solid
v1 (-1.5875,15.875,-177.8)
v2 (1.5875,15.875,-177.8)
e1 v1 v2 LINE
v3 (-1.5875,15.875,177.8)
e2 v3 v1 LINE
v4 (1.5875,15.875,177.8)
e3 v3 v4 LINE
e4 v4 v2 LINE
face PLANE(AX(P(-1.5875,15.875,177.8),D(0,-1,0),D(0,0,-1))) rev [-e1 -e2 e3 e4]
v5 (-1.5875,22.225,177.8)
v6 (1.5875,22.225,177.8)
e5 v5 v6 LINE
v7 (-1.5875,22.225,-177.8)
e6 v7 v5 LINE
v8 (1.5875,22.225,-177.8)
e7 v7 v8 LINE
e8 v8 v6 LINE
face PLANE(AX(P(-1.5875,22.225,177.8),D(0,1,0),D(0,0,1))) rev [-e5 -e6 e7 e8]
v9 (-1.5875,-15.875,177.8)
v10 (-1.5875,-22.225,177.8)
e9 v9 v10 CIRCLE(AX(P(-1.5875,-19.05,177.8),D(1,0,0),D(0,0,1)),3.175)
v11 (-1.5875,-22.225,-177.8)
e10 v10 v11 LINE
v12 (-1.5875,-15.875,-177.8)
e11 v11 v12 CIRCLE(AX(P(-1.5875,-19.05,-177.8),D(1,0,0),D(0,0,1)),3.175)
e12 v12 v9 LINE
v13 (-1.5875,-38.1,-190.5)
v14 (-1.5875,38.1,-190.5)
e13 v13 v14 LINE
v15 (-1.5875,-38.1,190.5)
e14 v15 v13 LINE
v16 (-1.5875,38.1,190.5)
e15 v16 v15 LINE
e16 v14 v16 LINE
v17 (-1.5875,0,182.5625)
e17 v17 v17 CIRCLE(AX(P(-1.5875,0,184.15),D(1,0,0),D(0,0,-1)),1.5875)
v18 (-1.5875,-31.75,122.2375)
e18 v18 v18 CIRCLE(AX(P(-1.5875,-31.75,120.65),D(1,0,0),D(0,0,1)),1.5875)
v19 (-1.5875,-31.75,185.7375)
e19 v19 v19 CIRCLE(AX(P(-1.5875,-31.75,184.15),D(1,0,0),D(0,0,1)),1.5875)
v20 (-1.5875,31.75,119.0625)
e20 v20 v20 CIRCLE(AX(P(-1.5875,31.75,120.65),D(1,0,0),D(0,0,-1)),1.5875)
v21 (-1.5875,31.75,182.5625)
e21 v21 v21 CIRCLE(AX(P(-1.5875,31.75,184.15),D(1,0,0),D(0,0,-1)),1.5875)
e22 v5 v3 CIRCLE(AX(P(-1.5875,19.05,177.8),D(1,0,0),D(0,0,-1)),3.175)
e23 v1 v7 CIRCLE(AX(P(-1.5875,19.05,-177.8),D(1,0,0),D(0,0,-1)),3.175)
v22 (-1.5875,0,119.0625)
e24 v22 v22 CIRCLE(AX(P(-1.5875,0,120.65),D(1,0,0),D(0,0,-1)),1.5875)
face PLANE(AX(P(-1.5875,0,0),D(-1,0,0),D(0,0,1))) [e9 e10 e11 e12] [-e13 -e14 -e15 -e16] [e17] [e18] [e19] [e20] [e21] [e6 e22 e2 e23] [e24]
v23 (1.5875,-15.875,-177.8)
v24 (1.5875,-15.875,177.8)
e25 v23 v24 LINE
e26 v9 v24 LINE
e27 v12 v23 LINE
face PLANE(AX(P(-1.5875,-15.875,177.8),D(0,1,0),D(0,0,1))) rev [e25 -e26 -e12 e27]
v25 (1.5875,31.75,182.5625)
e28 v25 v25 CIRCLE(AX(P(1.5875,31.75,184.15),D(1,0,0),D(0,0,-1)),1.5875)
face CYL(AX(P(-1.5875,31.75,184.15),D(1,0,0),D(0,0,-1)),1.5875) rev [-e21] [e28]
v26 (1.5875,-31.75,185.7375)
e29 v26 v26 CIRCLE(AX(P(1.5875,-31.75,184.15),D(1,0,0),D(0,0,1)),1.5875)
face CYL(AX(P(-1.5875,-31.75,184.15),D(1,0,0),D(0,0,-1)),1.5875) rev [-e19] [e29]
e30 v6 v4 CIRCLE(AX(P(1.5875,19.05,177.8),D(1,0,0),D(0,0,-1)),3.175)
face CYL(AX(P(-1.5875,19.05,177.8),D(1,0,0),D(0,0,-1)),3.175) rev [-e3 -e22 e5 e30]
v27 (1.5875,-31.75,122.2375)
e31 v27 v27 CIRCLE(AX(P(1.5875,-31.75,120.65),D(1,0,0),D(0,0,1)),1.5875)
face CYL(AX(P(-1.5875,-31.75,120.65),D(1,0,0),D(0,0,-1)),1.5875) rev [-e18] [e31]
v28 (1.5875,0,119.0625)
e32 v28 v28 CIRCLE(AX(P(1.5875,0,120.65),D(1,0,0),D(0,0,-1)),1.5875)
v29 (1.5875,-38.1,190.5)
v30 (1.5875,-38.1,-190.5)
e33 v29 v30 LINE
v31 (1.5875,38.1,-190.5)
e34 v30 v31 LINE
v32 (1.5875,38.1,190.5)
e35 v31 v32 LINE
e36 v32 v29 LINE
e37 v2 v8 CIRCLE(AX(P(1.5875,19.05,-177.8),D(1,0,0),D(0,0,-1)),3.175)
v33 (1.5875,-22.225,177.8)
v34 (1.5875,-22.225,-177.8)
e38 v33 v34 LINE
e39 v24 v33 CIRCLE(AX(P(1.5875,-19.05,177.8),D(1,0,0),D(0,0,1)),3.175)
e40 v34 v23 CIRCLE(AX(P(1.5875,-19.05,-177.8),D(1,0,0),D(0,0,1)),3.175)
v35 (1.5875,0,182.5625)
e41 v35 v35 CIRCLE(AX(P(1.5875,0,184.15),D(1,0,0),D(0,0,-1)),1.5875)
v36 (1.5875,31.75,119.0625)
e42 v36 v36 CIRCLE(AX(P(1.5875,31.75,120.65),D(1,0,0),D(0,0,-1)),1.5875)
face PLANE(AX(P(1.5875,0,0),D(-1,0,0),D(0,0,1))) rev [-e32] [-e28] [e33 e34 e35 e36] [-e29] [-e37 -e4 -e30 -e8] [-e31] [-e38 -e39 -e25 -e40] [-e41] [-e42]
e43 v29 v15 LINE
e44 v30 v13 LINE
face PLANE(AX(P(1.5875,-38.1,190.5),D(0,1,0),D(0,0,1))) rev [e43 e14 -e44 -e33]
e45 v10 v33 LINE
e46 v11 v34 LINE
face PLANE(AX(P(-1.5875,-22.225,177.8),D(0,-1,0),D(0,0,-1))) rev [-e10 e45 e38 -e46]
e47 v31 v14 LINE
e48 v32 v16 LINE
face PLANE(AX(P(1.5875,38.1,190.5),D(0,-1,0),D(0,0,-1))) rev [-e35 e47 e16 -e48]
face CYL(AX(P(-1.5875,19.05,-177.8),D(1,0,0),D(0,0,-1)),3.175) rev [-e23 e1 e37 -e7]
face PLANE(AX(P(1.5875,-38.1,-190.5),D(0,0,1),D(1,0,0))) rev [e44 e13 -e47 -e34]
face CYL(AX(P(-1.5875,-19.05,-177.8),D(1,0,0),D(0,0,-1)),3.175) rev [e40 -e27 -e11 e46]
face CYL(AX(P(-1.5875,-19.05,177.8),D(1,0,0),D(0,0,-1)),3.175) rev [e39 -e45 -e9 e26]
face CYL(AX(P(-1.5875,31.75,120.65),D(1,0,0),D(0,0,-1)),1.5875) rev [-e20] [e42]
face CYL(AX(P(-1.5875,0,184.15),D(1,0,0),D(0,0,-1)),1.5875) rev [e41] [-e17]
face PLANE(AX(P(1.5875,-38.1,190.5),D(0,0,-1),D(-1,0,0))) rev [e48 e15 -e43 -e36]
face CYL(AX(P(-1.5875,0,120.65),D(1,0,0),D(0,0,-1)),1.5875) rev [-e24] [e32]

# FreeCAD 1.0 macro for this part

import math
import FreeCAD as App
import Part
import Sketcher
Q = App.Units.Quantity

doc = App.newDocument("Part")
body = doc.addObject("PartDesign::Body", "Body")

sketch1 = body.newObject("Sketcher::SketchObject", "Sketch")
sketch1.AttachmentSupport = (doc.getObject("YZ_Plane"), [""])
sketch1.MapMode = "FlatFace"
sketch1.addGeometry(Part.LineSegment(App.Vector(38.1, 190.5, 0), App.Vector(-38.1, 190.5, 0)), False)
sketch1.addGeometry(Part.LineSegment(App.Vector(-38.1, 190.5, 0), App.Vector(-38.1, -190.5, 0)), False)
sketch1.addGeometry(Part.LineSegment(App.Vector(-38.1, -190.5, 0), App.Vector(38.1, -190.5, 0)), False)
sketch1.addGeometry(Part.LineSegment(App.Vector(38.1, -190.5, 0), App.Vector(38.1, 190.5, 0)), False)
sketch1.addConstraint(Sketcher.Constraint("Coincident", 0, 2, 1, 1))
sketch1.addConstraint(Sketcher.Constraint("Coincident", 1, 2, 2, 1))
sketch1.addConstraint(Sketcher.Constraint("Coincident", 2, 2, 3, 1))
sketch1.addConstraint(Sketcher.Constraint("Coincident", 3, 2, 0, 1))
sketch1.addConstraint(Sketcher.Constraint("Horizontal", 0))
sketch1.addConstraint(Sketcher.Constraint("Vertical", 1))
sketch1.addConstraint(Sketcher.Constraint("Horizontal", 2))
sketch1.addConstraint(Sketcher.Constraint("Vertical", 3))
sketch1.addConstraint(Sketcher.Constraint("Symmetric", 0, 2, 2, 2, -1, 1))
sketch1.addConstraint(Sketcher.Constraint("DistanceX", 0, 2, 0, 1, Q("3 in")))
sketch1.addConstraint(Sketcher.Constraint("DistanceY", 1, 2, 1, 1, Q("15 in")))
pad1 = body.newObject("PartDesign::Pad", "Pad")
pad1.Profile = sketch1
pad1.Length = Q("0.125 in")
pad1.Midplane = True

sketch2 = body.newObject("Sketcher::SketchObject", "Sketch001")
sketch2.AttachmentSupport = (doc.getObject("YZ_Plane"), [""])
sketch2.MapMode = "FlatFace"
sketch2.AttachmentOffset = App.Placement(App.Vector(0, 0, 0.0625 * 25.4), App.Rotation())
sketch2.addGeometry(Part.LineSegment(App.Vector(22.225, -177.8, 0), App.Vector(22.225, 177.8, 0)), False)
sketch2.addGeometry(Part.ArcOfCircle(Part.Circle(App.Vector(19.05, 177.8, 0), App.Vector(0, 0, 1), 3.175), math.radians(0), math.radians(180)), False)
sketch2.addGeometry(Part.LineSegment(App.Vector(15.875, 177.8, 0), App.Vector(15.875, -177.8, 0)), False)
sketch2.addGeometry(Part.ArcOfCircle(Part.Circle(App.Vector(19.05, -177.8, 0), App.Vector(0, 0, 1), 3.175), math.radians(180), math.radians(360)), False)
sketch2.addGeometry(Part.LineSegment(App.Vector(-22.225, 177.8, 0), App.Vector(-22.225, -177.8, 0)), False)
sketch2.addGeometry(Part.ArcOfCircle(Part.Circle(App.Vector(-19.05, -177.8, 0), App.Vector(0, 0, 1), 3.175), math.radians(180), math.radians(360)), False)
sketch2.addGeometry(Part.LineSegment(App.Vector(-15.875, -177.8, 0), App.Vector(-15.875, 177.8, 0)), False)
sketch2.addGeometry(Part.ArcOfCircle(Part.Circle(App.Vector(-19.05, 177.8, 0), App.Vector(0, 0, 1), 3.175), math.radians(0), math.radians(180)), False)
sketch2.addConstraint(Sketcher.Constraint("Tangent", 0, 2, 1, 1))
sketch2.addConstraint(Sketcher.Constraint("Tangent", 1, 2, 2, 1))
sketch2.addConstraint(Sketcher.Constraint("Tangent", 2, 2, 3, 1))
sketch2.addConstraint(Sketcher.Constraint("Tangent", 3, 2, 0, 1))
sketch2.addConstraint(Sketcher.Constraint("Tangent", 4, 2, 5, 1))
sketch2.addConstraint(Sketcher.Constraint("Tangent", 5, 2, 6, 1))
sketch2.addConstraint(Sketcher.Constraint("Tangent", 6, 2, 7, 1))
sketch2.addConstraint(Sketcher.Constraint("Tangent", 7, 2, 4, 1))
sketch2.addConstraint(Sketcher.Constraint("Vertical", 0))
sketch2.addConstraint(Sketcher.Constraint("Vertical", 2))
sketch2.addConstraint(Sketcher.Constraint("Vertical", 4))
sketch2.addConstraint(Sketcher.Constraint("Vertical", 6))
sketch2.addConstraint(Sketcher.Constraint("Equal", 3, 5))
sketch2.addConstraint(Sketcher.Constraint("Symmetric", 1, 3, 5, 3, -1, 1))
sketch2.addConstraint(Sketcher.Constraint("Horizontal", 3, 3, 5, 3))
sketch2.addConstraint(Sketcher.Constraint("Horizontal", 1, 3, 7, 3))
sketch2.addConstraint(Sketcher.Constraint("DistanceY", 0, 1, 0, 2, Q("14 in")))
sketch2.addConstraint(Sketcher.Constraint("Radius", 1, Q("0.125 in")))
sketch2.addConstraint(Sketcher.Constraint("DistanceX", 5, 3, 3, 3, Q("1.5 in")))
pocket1 = body.newObject("PartDesign::Pocket", "Pocket")
pocket1.Profile = sketch2
pocket1.Type = "ThroughAll"

sketch3 = body.newObject("Sketcher::SketchObject", "Sketch002")
sketch3.AttachmentSupport = (doc.getObject("YZ_Plane"), [""])
sketch3.MapMode = "FlatFace"
sketch3.AttachmentOffset = App.Placement(App.Vector(0, 0, 0.0625 * 25.4), App.Rotation())
sketch3.addGeometry(Part.Circle(App.Vector(31.75, 184.15, 0), App.Vector(0, 0, 1), 1.5875), False)
sketch3.addGeometry(Part.Circle(App.Vector(31.75, 120.65, 0), App.Vector(0, 0, 1), 1.5875), False)
sketch3.addGeometry(Part.Circle(App.Vector(-31.75, 120.65, 0), App.Vector(0, 0, 1), 1.5875), False)
sketch3.addGeometry(Part.Circle(App.Vector(-31.75, 184.15, 0), App.Vector(0, 0, 1), 1.5875), False)
sketch3.addGeometry(Part.Circle(App.Vector(0, 184.15, 0), App.Vector(0, 0, 1), 1.5875), False)
sketch3.addGeometry(Part.Circle(App.Vector(0, 120.65, 0), App.Vector(0, 0, 1), 1.5875), False)
sketch3.addConstraint(Sketcher.Constraint("Equal", 0, 1))
sketch3.addConstraint(Sketcher.Constraint("Equal", 1, 2))
sketch3.addConstraint(Sketcher.Constraint("Equal", 2, 3))
sketch3.addConstraint(Sketcher.Constraint("Equal", 3, 4))
sketch3.addConstraint(Sketcher.Constraint("Equal", 4, 5))
sketch3.addConstraint(Sketcher.Constraint("Symmetric", 1, 3, 2, 3, -2))
sketch3.addConstraint(Sketcher.Constraint("Symmetric", 0, 3, 3, 3, -2))
sketch3.addConstraint(Sketcher.Constraint("PointOnObject", 4, 3, -2))
sketch3.addConstraint(Sketcher.Constraint("PointOnObject", 5, 3, -2))
sketch3.addConstraint(Sketcher.Constraint("Horizontal", 3, 3, 4, 3))
sketch3.addConstraint(Sketcher.Constraint("Horizontal", 2, 3, 5, 3))
sketch3.addConstraint(Sketcher.Constraint("Vertical", 0, 3, 1, 3))
sketch3.addConstraint(Sketcher.Constraint("Diameter", 0, Q("0.125 in")))
sketch3.addConstraint(Sketcher.Constraint("DistanceY", 1, 3, 0, 3, Q("2.5 in")))
sketch3.addConstraint(Sketcher.Constraint("DistanceX", 2, 3, 1, 3, Q("2.5 in")))
sketch3.addConstraint(Sketcher.Constraint("DistanceY", -1, 1, 0, 3, Q("7.25 in")))
pocket2 = body.newObject("PartDesign::Pocket", "Pocket001")
pocket2.Profile = sketch3
pocket2.Type = "ThroughAll"

doc.recompute()
